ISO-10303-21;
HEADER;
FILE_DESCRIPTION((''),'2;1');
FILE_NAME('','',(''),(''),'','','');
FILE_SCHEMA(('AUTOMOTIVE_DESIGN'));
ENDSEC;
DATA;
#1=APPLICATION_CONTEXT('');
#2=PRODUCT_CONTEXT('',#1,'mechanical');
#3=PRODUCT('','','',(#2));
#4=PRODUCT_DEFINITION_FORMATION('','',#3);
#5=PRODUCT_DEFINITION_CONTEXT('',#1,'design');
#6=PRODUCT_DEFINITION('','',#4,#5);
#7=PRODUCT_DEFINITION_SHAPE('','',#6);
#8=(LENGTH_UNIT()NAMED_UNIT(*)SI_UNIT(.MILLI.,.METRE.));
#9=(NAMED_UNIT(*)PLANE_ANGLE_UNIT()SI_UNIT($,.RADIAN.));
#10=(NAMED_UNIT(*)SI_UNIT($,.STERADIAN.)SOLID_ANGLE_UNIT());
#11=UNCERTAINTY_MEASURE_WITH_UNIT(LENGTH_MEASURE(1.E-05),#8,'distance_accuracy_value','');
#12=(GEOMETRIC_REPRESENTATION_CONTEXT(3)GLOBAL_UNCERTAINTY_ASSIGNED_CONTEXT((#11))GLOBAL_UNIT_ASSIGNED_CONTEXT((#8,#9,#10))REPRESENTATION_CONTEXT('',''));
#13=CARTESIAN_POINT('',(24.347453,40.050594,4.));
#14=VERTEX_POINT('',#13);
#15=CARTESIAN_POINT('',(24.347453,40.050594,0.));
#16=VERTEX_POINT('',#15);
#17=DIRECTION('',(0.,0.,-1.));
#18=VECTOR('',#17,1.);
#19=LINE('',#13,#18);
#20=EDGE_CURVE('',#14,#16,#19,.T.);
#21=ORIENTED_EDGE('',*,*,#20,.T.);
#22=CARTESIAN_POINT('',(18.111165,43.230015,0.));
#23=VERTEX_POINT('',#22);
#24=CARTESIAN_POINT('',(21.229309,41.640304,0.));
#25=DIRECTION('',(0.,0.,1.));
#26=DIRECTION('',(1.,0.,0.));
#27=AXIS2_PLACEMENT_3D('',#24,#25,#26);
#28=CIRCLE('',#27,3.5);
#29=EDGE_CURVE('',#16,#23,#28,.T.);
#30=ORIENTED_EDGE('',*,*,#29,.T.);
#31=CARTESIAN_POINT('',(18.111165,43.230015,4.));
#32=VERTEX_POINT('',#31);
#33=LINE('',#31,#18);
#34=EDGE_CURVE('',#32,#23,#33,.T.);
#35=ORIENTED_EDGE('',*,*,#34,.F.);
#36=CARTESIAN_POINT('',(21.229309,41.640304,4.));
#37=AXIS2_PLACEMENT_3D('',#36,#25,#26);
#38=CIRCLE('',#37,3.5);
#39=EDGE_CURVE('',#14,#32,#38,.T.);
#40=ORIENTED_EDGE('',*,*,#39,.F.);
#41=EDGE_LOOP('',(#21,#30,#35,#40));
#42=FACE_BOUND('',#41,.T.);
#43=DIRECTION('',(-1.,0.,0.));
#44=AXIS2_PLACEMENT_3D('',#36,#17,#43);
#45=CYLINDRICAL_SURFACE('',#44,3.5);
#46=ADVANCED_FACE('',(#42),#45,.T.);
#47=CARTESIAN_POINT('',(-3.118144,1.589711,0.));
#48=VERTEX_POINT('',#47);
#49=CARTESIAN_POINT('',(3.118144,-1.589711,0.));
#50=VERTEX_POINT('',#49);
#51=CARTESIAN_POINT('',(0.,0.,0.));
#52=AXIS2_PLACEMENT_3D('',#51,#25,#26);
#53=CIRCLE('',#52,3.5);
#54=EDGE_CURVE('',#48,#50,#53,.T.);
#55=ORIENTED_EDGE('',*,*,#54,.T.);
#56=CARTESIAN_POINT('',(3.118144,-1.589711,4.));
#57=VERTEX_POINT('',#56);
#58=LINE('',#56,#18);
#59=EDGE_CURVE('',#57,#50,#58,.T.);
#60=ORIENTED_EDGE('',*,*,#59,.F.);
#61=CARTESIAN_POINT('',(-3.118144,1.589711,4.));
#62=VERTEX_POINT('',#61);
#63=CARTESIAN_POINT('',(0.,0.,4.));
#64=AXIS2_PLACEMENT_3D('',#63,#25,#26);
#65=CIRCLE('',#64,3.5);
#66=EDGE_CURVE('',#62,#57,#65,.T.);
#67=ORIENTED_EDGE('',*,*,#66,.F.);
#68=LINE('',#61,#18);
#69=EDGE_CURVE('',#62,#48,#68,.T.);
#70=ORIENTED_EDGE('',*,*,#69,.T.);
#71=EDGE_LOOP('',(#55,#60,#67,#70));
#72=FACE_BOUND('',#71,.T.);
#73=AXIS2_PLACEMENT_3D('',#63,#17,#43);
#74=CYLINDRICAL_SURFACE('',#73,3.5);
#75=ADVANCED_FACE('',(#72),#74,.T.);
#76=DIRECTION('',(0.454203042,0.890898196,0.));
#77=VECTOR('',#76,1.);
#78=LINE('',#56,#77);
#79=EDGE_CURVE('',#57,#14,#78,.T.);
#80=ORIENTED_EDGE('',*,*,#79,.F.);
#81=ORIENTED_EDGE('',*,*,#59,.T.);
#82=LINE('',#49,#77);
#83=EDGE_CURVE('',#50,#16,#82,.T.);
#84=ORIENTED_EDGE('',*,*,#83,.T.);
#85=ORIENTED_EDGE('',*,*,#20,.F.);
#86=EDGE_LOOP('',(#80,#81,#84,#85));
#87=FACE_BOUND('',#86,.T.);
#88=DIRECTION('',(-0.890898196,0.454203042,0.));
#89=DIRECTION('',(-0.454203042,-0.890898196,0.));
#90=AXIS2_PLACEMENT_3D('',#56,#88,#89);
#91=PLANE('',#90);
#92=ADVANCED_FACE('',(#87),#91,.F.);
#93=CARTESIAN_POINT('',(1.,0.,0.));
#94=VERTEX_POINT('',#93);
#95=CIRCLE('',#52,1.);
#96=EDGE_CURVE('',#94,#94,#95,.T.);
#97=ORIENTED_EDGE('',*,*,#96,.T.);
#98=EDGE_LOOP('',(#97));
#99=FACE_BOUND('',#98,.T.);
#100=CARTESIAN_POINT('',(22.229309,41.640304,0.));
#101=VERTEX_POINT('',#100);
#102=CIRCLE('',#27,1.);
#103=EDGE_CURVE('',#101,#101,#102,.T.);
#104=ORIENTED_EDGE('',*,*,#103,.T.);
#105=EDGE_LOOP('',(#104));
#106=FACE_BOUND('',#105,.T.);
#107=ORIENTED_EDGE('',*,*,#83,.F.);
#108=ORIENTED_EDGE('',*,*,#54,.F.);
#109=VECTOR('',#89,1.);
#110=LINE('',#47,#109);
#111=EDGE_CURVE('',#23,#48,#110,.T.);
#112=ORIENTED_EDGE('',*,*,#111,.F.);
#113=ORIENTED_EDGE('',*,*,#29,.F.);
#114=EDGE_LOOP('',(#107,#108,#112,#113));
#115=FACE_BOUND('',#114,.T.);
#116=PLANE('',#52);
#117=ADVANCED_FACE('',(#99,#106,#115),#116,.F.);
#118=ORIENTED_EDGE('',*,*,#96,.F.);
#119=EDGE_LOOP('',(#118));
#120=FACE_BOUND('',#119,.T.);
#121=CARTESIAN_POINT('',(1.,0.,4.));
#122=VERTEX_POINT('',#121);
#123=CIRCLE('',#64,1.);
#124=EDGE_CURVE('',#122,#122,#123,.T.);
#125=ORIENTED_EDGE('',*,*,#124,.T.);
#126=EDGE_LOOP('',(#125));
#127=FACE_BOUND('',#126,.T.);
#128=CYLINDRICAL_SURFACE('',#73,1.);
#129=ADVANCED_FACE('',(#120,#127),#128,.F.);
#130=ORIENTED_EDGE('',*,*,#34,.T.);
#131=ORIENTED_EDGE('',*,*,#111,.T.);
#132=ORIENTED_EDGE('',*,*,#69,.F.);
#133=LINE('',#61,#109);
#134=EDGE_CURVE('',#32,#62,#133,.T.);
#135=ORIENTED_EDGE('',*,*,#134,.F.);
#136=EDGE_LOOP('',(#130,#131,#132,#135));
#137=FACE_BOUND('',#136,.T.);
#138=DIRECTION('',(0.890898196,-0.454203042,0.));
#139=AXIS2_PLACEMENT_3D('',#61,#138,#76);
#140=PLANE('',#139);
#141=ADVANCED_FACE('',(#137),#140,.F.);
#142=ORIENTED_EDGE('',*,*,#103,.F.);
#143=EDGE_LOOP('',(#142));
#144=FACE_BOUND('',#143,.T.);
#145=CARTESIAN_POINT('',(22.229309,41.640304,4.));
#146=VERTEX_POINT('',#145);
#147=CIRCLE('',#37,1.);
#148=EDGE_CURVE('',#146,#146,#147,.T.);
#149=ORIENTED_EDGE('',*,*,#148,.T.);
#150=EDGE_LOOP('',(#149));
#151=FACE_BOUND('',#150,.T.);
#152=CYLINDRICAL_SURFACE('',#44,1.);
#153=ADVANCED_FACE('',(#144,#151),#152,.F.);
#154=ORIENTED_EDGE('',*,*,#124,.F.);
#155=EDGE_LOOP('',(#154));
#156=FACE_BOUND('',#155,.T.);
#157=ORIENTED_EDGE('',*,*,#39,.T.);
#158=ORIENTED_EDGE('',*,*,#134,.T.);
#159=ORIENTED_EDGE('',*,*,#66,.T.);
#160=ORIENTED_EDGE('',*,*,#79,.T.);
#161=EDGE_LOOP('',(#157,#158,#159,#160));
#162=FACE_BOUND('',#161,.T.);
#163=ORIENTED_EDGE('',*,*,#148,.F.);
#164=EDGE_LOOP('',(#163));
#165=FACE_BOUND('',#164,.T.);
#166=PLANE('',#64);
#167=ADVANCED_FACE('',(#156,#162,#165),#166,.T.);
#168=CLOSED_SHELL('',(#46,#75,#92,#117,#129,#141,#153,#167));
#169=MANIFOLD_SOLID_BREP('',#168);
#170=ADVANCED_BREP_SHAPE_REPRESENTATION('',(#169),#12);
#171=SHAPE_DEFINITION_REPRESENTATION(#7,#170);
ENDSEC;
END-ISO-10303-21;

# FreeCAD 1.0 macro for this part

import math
import FreeCAD as App
import Part
import Sketcher
Q = App.Units.Quantity

doc = App.newDocument("Part")
body = doc.addObject("PartDesign::Body", "Body")

# Sketch on XY plane
sketch1 = body.newObject("Sketcher::SketchObject", "Sketch")
sketch1.AttachmentSupport = (doc.getObject("XY_Plane"), [""])
sketch1.MapMode = "FlatFace"
sketch1.addGeometry([
    Part.LineSegment(App.Vector(18.1, 43.2, 0), App.Vector(-3.1, 1.6, 0)),  # 0
    Part.ArcOfCircle(Part.Circle(App.Vector(0, 0, 0), App.Vector(0, 0, 1), 3.5), math.radians(153), math.radians(333)),  # 1
    Part.LineSegment(App.Vector(3.1, -1.6, 0), App.Vector(24.3, 40.1, 0)),  # 2
    Part.ArcOfCircle(Part.Circle(App.Vector(21.2, 41.6, 0), App.Vector(0, 0, 1), 3.5), math.radians(-27), math.radians(153)),  # 3
    Part.Circle(App.Vector(0, 0, 0), App.Vector(0, 0, 1), 1),  # 4
    Part.Circle(App.Vector(21.2, 41.6, 0), App.Vector(0, 0, 1), 1),  # 5
], False)
sketch1.addConstraint([
    Sketcher.Constraint("Tangent", 0, 2, 1, 1),
    Sketcher.Constraint("Tangent", 1, 2, 2, 1),
    Sketcher.Constraint("Tangent", 2, 2, 3, 1),
    Sketcher.Constraint("Tangent", 3, 2, 0, 1),
    Sketcher.Constraint("Coincident", 1, 3, -1, 1),
    Sketcher.Constraint("Coincident", 4, 3, -1, 1),
    Sketcher.Constraint("Coincident", 5, 3, 3, 3),
    Sketcher.Constraint("Equal", 1, 3),
    Sketcher.Constraint("Equal", 4, 5),
    Sketcher.Constraint("Diameter", 4, Q("2 mm")),
    Sketcher.Constraint("Radius", 1, Q("3.5 mm")),
    Sketcher.Constraint("Distance", 0, Q("46.739689 mm")),
    Sketcher.Constraint("DistanceX", -1, 1, 3, 3, Q("21.229309 mm")),
])
pad1 = body.newObject("PartDesign::Pad", "Pad")
pad1.Profile = sketch1
pad1.Length = 4

doc.recompute()
